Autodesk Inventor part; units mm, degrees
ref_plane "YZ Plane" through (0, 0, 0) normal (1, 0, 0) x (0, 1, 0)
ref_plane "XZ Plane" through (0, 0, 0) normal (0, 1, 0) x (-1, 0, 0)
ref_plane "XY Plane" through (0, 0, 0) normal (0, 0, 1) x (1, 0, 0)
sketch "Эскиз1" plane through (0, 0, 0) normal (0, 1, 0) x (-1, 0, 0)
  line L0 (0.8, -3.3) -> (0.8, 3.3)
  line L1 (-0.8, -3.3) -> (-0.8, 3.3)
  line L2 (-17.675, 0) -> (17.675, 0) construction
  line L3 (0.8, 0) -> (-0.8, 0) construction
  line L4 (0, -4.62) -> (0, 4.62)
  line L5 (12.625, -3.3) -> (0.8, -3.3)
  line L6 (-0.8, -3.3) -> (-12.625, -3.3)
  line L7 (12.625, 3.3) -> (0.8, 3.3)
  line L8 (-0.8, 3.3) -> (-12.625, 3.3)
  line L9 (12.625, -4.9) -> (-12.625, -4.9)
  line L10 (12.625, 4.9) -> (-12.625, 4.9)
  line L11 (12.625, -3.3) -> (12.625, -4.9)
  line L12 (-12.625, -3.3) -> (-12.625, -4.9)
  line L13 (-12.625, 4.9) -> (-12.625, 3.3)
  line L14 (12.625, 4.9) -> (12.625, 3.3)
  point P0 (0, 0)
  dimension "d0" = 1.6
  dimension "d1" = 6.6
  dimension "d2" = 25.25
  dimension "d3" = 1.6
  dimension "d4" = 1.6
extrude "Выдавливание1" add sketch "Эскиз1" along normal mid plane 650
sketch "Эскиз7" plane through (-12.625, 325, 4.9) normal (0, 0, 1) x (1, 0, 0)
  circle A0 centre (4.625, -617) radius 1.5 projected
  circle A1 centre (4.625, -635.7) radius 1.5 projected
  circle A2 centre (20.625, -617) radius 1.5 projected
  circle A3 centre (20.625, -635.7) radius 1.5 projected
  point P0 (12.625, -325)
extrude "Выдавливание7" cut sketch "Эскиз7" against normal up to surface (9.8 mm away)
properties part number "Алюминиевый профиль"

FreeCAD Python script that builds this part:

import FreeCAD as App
import Part
import Sketcher


def add_polygon(sketch, points):
    """Adds a closed chain of lines whose ends are joined by coincident constraints."""
    first, n = sketch.GeometryCount, len(points)
    for a, b in zip(points, points[1:] + points[:1]):
        sketch.addGeometry(Part.LineSegment(App.Vector(*a, 0), App.Vector(*b, 0)), False)
    for i in range(n):
        sketch.addConstraint(Sketcher.Constraint("Coincident", first + i, 2, first + (i + 1) % n, 1))

doc = App.newDocument("Part")
body = doc.addObject("PartDesign::Body", "Body")

# Sketch on XZ plane
sketch1 = body.newObject("Sketcher::SketchObject", "Sketch")
sketch1.AttachmentSupport = (doc.getObject("XZ_Plane"), [""])
sketch1.MapMode = "FlatFace"
add_polygon(sketch1, [(-12.625, -3.3), (-0.8, -3.3), (-0.8, 3.3), (-12.625, 3.3), (-12.625, 4.9), (12.625, 4.9), (12.625, 3.3), (0.8, 3.3), (0.8, -3.3), (12.625, -3.3), (12.625, -4.9), (-12.625, -4.9)])  # lines 0-11
sketch1.addConstraint([
    Sketcher.Constraint("Horizontal", 0),
    Sketcher.Constraint("Vertical", 1),
    Sketcher.Constraint("Horizontal", 2),
    Sketcher.Constraint("Vertical", 3),
    Sketcher.Constraint("Horizontal", 4),
    Sketcher.Constraint("Vertical", 5),
    Sketcher.Constraint("Horizontal", 6),
    Sketcher.Constraint("Vertical", 7),
    Sketcher.Constraint("Horizontal", 8),
    Sketcher.Constraint("Vertical", 9),
    Sketcher.Constraint("Horizontal", 10),
    Sketcher.Constraint("Vertical", 11),
    Sketcher.Constraint("Symmetric", 0, 2, 6, 2, -1, 1),
    Sketcher.Constraint("Symmetric", 2, 2, 8, 2, -1, 1),
    Sketcher.Constraint("Symmetric", 4, 2, 10, 2, -1, 1),
    Sketcher.Constraint("Symmetric", 2, 2, 5, 2, -2),
    Sketcher.Constraint("DistanceY", 1, 1, 1, 2, 6.6),
    Sketcher.Constraint("DistanceY", 3, 1, 3, 2, 1.6),
    Sketcher.Constraint("DistanceX", 4, 1, 4, 2, 25.25),
    Sketcher.Constraint("DistanceX", 1, 2, 6, 2, 1.6),
])
pad1 = body.newObject("PartDesign::Pad", "Pad")
pad1.Profile = sketch1
pad1.Length = 650
pad1.Midplane = True

# Sketch on XY plane
sketch2 = body.newObject("Sketcher::SketchObject", "Sketch001")
sketch2.AttachmentSupport = (doc.getObject("XY_Plane"), [""])
sketch2.MapMode = "FlatFace"
sketch2.AttachmentOffset = App.Placement(App.Vector(0, 0, 4.9), App.Rotation())
sketch2.addGeometry([
    Part.Circle(App.Vector(-8, -292, 0), App.Vector(0, 0, 1), 1.5),
    Part.Circle(App.Vector(-8, -310.7, 0), App.Vector(0, 0, 1), 1.5),
    Part.Circle(App.Vector(8, -292, 0), App.Vector(0, 0, 1), 1.5),
    Part.Circle(App.Vector(8, -310.7, 0), App.Vector(0, 0, 1), 1.5),
], False)
sketch2.addConstraint([
    Sketcher.Constraint("Equal", 0, 1),
    Sketcher.Constraint("Equal", 1, 2),
    Sketcher.Constraint("Equal", 2, 3),
    Sketcher.Constraint("Symmetric", 0, 3, 2, 3, -2),
    Sketcher.Constraint("Symmetric", 1, 3, 3, 3, -2),
    Sketcher.Constraint("Vertical", 0, 3, 1, 3),
    Sketcher.Constraint("Diameter", 0, 3.0),
    Sketcher.Constraint("DistanceX", 0, 3, -1, 1, 8.0),
    Sketcher.Constraint("DistanceY", 0, 3, -1, 1, 292.0),
    Sketcher.Constraint("DistanceY", 1, 3, -1, 1, 310.7),
])
pocket1 = body.newObject("PartDesign::Pocket", "Pocket")
pocket1.Profile = sketch2
pocket1.Length = 9.8

doc.recompute()
